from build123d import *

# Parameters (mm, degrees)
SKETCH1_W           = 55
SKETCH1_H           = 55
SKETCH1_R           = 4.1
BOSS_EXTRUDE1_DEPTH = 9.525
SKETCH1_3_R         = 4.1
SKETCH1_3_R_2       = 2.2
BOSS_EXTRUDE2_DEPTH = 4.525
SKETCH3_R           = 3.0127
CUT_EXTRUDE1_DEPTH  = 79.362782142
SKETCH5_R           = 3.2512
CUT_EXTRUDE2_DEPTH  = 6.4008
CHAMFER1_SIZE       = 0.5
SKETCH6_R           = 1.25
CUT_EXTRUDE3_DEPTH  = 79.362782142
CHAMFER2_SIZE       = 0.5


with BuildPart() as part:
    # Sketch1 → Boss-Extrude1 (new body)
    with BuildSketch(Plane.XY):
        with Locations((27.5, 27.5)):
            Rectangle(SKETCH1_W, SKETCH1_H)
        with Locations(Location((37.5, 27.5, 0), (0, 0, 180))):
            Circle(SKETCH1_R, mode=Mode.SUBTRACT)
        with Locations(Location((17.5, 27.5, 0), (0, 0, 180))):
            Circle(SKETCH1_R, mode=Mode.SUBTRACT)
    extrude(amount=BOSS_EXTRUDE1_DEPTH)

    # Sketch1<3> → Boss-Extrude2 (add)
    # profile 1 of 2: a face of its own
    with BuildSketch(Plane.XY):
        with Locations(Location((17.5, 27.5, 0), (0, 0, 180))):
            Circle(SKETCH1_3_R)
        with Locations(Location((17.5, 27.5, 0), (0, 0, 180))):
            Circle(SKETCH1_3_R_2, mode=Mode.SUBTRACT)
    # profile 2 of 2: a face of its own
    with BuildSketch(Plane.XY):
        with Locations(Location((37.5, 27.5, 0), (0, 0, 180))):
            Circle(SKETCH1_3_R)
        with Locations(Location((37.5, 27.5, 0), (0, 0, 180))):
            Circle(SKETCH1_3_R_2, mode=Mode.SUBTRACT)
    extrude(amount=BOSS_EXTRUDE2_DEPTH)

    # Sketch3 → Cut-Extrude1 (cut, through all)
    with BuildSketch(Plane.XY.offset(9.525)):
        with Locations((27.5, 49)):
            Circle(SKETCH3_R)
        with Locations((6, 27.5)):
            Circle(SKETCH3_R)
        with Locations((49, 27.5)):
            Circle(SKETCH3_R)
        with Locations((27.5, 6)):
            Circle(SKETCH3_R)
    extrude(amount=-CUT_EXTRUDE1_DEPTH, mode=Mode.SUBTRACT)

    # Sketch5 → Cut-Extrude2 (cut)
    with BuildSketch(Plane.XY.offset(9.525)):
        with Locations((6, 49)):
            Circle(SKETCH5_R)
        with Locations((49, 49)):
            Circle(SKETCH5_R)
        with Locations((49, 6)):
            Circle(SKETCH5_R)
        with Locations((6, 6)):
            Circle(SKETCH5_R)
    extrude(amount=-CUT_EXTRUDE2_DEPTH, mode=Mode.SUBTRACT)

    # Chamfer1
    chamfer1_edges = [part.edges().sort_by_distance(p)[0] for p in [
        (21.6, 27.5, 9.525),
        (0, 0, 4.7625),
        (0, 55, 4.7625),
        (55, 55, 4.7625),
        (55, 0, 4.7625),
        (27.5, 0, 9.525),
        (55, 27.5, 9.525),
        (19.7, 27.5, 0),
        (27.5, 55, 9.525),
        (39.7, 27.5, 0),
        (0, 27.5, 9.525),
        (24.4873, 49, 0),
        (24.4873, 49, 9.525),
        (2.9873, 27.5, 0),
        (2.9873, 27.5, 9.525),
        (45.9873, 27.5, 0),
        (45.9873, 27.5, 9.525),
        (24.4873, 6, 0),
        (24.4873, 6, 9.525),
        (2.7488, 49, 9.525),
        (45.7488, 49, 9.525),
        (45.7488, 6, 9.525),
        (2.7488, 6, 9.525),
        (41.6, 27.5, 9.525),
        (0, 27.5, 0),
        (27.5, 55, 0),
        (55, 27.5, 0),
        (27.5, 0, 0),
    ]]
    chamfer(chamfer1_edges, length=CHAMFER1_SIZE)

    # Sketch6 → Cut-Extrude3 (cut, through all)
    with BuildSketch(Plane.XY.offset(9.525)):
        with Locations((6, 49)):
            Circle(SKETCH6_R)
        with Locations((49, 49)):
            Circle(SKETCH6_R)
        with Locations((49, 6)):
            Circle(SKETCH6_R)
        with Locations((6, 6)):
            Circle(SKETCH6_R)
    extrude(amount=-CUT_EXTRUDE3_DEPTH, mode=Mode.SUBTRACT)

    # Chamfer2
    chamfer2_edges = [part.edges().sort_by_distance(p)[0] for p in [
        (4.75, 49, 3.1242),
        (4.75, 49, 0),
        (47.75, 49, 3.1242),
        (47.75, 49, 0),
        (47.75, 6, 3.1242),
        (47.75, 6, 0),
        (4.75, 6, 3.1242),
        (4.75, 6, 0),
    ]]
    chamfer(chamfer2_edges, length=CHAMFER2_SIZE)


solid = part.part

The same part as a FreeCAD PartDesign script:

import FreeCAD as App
import Part
import Sketcher

V = App.Vector


def edges_at(feature, points):
    """Names of the edges that pass closest to the given points."""
    edges = feature.Shape.Edges
    near = lambda p: min(range(len(edges)), key=lambda i: edges[i].distToShape(Part.Vertex(*p))[0])
    return sorted({f"Edge{near(p) + 1}" for p in points})


def add_polygon(sketch, points):
    """Adds a closed chain of lines whose ends are joined by coincident constraints."""
    first, n = sketch.GeometryCount, len(points)
    for a, b in zip(points, points[1:] + points[:1]):
        sketch.addGeometry(Part.LineSegment(App.Vector(*a, 0), App.Vector(*b, 0)), False)
    for i in range(n):
        sketch.addConstraint(Sketcher.Constraint("Coincident", first + i, 2, first + (i + 1) % n, 1))

doc = App.newDocument("Part")
params = doc.addObject("Spreadsheet::Sheet", "Params")
for row, (alias, value) in enumerate([
    ("sketch1_diameter", "8.2 mm"),
    ("sketch1_width", "55 mm"),
    ("pad1_length", "9.525 mm"),
    ("sketch2_diameter", "8.2 mm"),
    ("sketch2_diameter2", "4.4 mm"),
    ("pad2_length", "4.525 mm"),
    ("pocket2_length", "6.4008 mm"),
    ("chamfer_size", "0.5 mm"),
    ("sketch5_diameter", "2.5 mm"),
    ("chamfer2_size", "0.5 mm"),
], start=1):
    params.set(f"A{row}", alias)
    params.set(f"B{row}", "=" + value)
    params.setAlias(f"B{row}", alias)

body = doc.addObject("PartDesign::Body", "Body")

sketch1 = doc.addObject("Sketcher::SketchObject", "Sketch")
body.addObject(sketch1)
sketch1.AttachmentSupport = (doc.XY_Plane, [""])
sketch1.MapMode = "FlatFace"
add_polygon(sketch1, [(0, 55), (0, 0), (55, 0), (55, 55)])
sketch1.addGeometry(Part.Circle(V(17.5, 27.5, 0), V(0, 0, 1), 4.1), False)
sketch1.addGeometry(Part.Circle(V(37.5, 27.5, 0), V(0, 0, 1), 4.1), False)
sketch1.addConstraint([
    Sketcher.Constraint("Vertical", 0),
    Sketcher.Constraint("Horizontal", 1),
    Sketcher.Constraint("Vertical", 2),
    Sketcher.Constraint("Horizontal", 3),
    Sketcher.Constraint("Coincident", 0, 2, -1, 1),
    Sketcher.Constraint("Equal", 4, 5),
    Sketcher.Constraint("Horizontal", 4, 3, 5, 3),
    Sketcher.Constraint("Equal", 3, 0),
    Sketcher.Constraint("Diameter", 4, 8.2),
    Sketcher.Constraint("DistanceX", 1, 1, 1, 2, 55.0),
    Sketcher.Constraint("DistanceX", 4, 3, 5, 3, 20.0),
    Sketcher.Constraint("DistanceX", -1, 1, 4, 3, 17.5),
    Sketcher.Constraint("DistanceY", -1, 1, 4, 3, 27.5),
])
sketch1.setExpression("Constraints[12]", "Params.sketch1_diameter")
sketch1.setExpression("Constraints[13]", "Params.sketch1_width")
pad1 = doc.addObject("PartDesign::Pad", "Pad")
body.addObject(pad1)
pad1.Profile = sketch1
pad1.setExpression("Length", "Params.pad1_length")

sketch2 = doc.addObject("Sketcher::SketchObject", "Sketch001")
body.addObject(sketch2)
sketch2.AttachmentSupport = (doc.XY_Plane, [""])
sketch2.MapMode = "FlatFace"
sketch2.addGeometry([
    Part.Circle(V(17.5, 27.5, 0), V(0, 0, 1), 4.1),
    Part.Circle(V(17.5, 27.5, 0), V(0, 0, 1), 2.2),
    Part.Circle(V(37.5, 27.5, 0), V(0, 0, 1), 4.1),
    Part.Circle(V(37.5, 27.5, 0), V(0, 0, 1), 2.2),
], False)
sketch2.addConstraint([
    Sketcher.Constraint("Coincident", 1, 3, 0, 3),
    Sketcher.Constraint("Coincident", 3, 3, 2, 3),
    Sketcher.Constraint("Equal", 0, 2),
    Sketcher.Constraint("Equal", 1, 3),
    Sketcher.Constraint("Horizontal", 1, 3, 2, 3),
    Sketcher.Constraint("Diameter", 0, 8.2),
    Sketcher.Constraint("Diameter", 1, 4.4),
    Sketcher.Constraint("DistanceX", 0, 3, 2, 3, 20.0),
    Sketcher.Constraint("DistanceX", -1, 1, 0, 3, 17.5),
    Sketcher.Constraint("DistanceY", -1, 1, 0, 3, 27.5),
])
sketch2.setExpression("Constraints[5]", "Params.sketch2_diameter")
sketch2.setExpression("Constraints[6]", "Params.sketch2_diameter2")
pad2 = doc.addObject("PartDesign::Pad", "Pad001")
body.addObject(pad2)
pad2.Profile = sketch2
pad2.setExpression("Length", "Params.pad2_length")

sketch3 = doc.addObject("Sketcher::SketchObject", "Sketch002")
body.addObject(sketch3)
sketch3.AttachmentSupport = (doc.XY_Plane, [""])
sketch3.MapMode = "FlatFace"
sketch3.AttachmentOffset = App.Placement(V(0, 0, 9.525), App.Rotation())
sketch3.addGeometry([
    Part.Circle(V(27.5, 49, 0), V(0, 0, 1), 3.0127),
    Part.Circle(V(6, 27.5, 0), V(0, 0, 1), 3.0127),
    Part.Circle(V(49, 27.5, 0), V(0, 0, 1), 3.0127),
    Part.Circle(V(27.5, 6, 0), V(0, 0, 1), 3.0127),
], False)
sketch3.addConstraint([
    Sketcher.Constraint("Equal", 0, 1),
    Sketcher.Constraint("Equal", 1, 2),
    Sketcher.Constraint("Equal", 2, 3),
    Sketcher.Constraint("Horizontal", 1, 3, 2, 3),
    Sketcher.Constraint("Vertical", 0, 3, 3, 3),
    Sketcher.Constraint("DistanceY", -1, 1, 0, 3, 49.0),
    Sketcher.Constraint("DistanceX", -1, 1, 1, 3, 6.0),
    Sketcher.Constraint("DistanceX", -1, 1, 2, 3, 49.0),
    Sketcher.Constraint("DistanceY", -1, 1, 3, 3, 6.0),
    Sketcher.Constraint("Diameter", 0, 6.0254),
    Sketcher.Constraint("DistanceX", -1, 1, 0, 3, 27.5),
    Sketcher.Constraint("DistanceY", -1, 1, 1, 3, 27.5),
])
pocket1 = doc.addObject("PartDesign::Pocket", "Pocket")
body.addObject(pocket1)
pocket1.Profile = sketch3
pocket1.Type = "ThroughAll"

sketch4 = doc.addObject("Sketcher::SketchObject", "Sketch003")
body.addObject(sketch4)
sketch4.AttachmentSupport = (doc.XY_Plane, [""])
sketch4.MapMode = "FlatFace"
sketch4.AttachmentOffset = App.Placement(V(0, 0, 9.525), App.Rotation())
sketch4.addGeometry([
    Part.Circle(V(6, 49, 0), V(0, 0, 1), 3.2512),
    Part.Circle(V(49, 49, 0), V(0, 0, 1), 3.2512),
    Part.Circle(V(49, 6, 0), V(0, 0, 1), 3.2512),
    Part.Circle(V(6, 6, 0), V(0, 0, 1), 3.2512),
], False)
sketch4.addConstraint([
    Sketcher.Constraint("Equal", 0, 1),
    Sketcher.Constraint("Equal", 1, 2),
    Sketcher.Constraint("Equal", 2, 3),
    Sketcher.Constraint("Horizontal", 0, 3, 1, 3),
    Sketcher.Constraint("Horizontal", 2, 3, 3, 3),
    Sketcher.Constraint("Vertical", 1, 3, 2, 3),
    Sketcher.Constraint("Vertical", 0, 3, 3, 3),
    Sketcher.Constraint("DistanceX", -1, 1, 0, 3, 6.0),
    Sketcher.Constraint("DistanceY", -1, 1, 0, 3, 49.0),
    Sketcher.Constraint("DistanceX", -1, 1, 1, 3, 49.0),
    Sketcher.Constraint("DistanceY", -1, 1, 2, 3, 6.0),
    Sketcher.Constraint("Diameter", 0, 6.5024),
])
pocket2 = doc.addObject("PartDesign::Pocket", "Pocket001")
body.addObject(pocket2)
pocket2.Profile = sketch4
pocket2.setExpression("Length", "Params.pocket2_length")
doc.recompute()

chamfer = doc.addObject("PartDesign::Chamfer", "Chamfer")
body.addObject(chamfer)
chamfer.Base = (pocket2, edges_at(pocket2, [
    (21.6, 27.5, 9.525),
    (0, 0, 4.763),
    (0, 55, 4.763),
    (55, 55, 4.763),
    (55, 0, 4.763),
    (27.5, 0, 9.525),
    (55, 27.5, 9.525),
    (19.7, 27.5, 0),
    (27.5, 55, 9.525),
    (39.7, 27.5, 0),
    (0, 27.5, 9.525),
    (24.487, 49, 0),
    (24.487, 49, 9.525),
    (2.987, 27.5, 0),
    (2.987, 27.5, 9.525),
    (45.987, 27.5, 0),
    (45.987, 27.5, 9.525),
    (24.487, 6, 0),
    (24.487, 6, 9.525),
    (2.749, 49, 9.525),
    (45.749, 49, 9.525),
    (45.749, 6, 9.525),
    (2.749, 6, 9.525),
    (41.6, 27.5, 9.525),
    (0, 27.5, 0),
    (27.5, 55, 0),
    (55, 27.5, 0),
    (27.5, 0, 0),
]))
chamfer.setExpression("Size", "Params.chamfer_size")

sketch5 = doc.addObject("Sketcher::SketchObject", "Sketch004")
body.addObject(sketch5)
sketch5.AttachmentSupport = (doc.XY_Plane, [""])
sketch5.MapMode = "FlatFace"
sketch5.AttachmentOffset = App.Placement(V(0, 0, 9.525), App.Rotation())
sketch5.addGeometry([
    Part.Circle(V(6, 49, 0), V(0, 0, 1), 1.25),
    Part.Circle(V(49, 49, 0), V(0, 0, 1), 1.25),
    Part.Circle(V(49, 6, 0), V(0, 0, 1), 1.25),
    Part.Circle(V(6, 6, 0), V(0, 0, 1), 1.25),
], False)
sketch5.addConstraint([
    Sketcher.Constraint("Equal", 0, 1),
    Sketcher.Constraint("Equal", 1, 2),
    Sketcher.Constraint("Equal", 2, 3),
    Sketcher.Constraint("Horizontal", 0, 3, 1, 3),
    Sketcher.Constraint("Horizontal", 2, 3, 3, 3),
    Sketcher.Constraint("Vertical", 1, 3, 2, 3),
    Sketcher.Constraint("Vertical", 0, 3, 3, 3),
    Sketcher.Constraint("Diameter", 0, 2.5),
    Sketcher.Constraint("DistanceX", -1, 1, 0, 3, 6.0),
    Sketcher.Constraint("DistanceY", -1, 1, 0, 3, 49.0),
    Sketcher.Constraint("DistanceX", -1, 1, 1, 3, 49.0),
    Sketcher.Constraint("DistanceY", -1, 1, 2, 3, 6.0),
])
sketch5.setExpression("Constraints[7]", "Params.sketch5_diameter")
pocket3 = doc.addObject("PartDesign::Pocket", "Pocket002")
body.addObject(pocket3)
pocket3.Profile = sketch5
pocket3.Type = "ThroughAll"
doc.recompute()

chamfer2 = doc.addObject("PartDesign::Chamfer", "Chamfer001")
body.addObject(chamfer2)
chamfer2.Base = (pocket3, edges_at(pocket3, [
    (4.75, 49, 3.124),
    (4.75, 49, 0),
    (47.75, 49, 3.124),
    (47.75, 49, 0),
    (47.75, 6, 3.124),
    (47.75, 6, 0),
    (4.75, 6, 3.124),
    (4.75, 6, 0),
]))
chamfer2.setExpression("Size", "Params.chamfer2_size")

doc.recompute()
